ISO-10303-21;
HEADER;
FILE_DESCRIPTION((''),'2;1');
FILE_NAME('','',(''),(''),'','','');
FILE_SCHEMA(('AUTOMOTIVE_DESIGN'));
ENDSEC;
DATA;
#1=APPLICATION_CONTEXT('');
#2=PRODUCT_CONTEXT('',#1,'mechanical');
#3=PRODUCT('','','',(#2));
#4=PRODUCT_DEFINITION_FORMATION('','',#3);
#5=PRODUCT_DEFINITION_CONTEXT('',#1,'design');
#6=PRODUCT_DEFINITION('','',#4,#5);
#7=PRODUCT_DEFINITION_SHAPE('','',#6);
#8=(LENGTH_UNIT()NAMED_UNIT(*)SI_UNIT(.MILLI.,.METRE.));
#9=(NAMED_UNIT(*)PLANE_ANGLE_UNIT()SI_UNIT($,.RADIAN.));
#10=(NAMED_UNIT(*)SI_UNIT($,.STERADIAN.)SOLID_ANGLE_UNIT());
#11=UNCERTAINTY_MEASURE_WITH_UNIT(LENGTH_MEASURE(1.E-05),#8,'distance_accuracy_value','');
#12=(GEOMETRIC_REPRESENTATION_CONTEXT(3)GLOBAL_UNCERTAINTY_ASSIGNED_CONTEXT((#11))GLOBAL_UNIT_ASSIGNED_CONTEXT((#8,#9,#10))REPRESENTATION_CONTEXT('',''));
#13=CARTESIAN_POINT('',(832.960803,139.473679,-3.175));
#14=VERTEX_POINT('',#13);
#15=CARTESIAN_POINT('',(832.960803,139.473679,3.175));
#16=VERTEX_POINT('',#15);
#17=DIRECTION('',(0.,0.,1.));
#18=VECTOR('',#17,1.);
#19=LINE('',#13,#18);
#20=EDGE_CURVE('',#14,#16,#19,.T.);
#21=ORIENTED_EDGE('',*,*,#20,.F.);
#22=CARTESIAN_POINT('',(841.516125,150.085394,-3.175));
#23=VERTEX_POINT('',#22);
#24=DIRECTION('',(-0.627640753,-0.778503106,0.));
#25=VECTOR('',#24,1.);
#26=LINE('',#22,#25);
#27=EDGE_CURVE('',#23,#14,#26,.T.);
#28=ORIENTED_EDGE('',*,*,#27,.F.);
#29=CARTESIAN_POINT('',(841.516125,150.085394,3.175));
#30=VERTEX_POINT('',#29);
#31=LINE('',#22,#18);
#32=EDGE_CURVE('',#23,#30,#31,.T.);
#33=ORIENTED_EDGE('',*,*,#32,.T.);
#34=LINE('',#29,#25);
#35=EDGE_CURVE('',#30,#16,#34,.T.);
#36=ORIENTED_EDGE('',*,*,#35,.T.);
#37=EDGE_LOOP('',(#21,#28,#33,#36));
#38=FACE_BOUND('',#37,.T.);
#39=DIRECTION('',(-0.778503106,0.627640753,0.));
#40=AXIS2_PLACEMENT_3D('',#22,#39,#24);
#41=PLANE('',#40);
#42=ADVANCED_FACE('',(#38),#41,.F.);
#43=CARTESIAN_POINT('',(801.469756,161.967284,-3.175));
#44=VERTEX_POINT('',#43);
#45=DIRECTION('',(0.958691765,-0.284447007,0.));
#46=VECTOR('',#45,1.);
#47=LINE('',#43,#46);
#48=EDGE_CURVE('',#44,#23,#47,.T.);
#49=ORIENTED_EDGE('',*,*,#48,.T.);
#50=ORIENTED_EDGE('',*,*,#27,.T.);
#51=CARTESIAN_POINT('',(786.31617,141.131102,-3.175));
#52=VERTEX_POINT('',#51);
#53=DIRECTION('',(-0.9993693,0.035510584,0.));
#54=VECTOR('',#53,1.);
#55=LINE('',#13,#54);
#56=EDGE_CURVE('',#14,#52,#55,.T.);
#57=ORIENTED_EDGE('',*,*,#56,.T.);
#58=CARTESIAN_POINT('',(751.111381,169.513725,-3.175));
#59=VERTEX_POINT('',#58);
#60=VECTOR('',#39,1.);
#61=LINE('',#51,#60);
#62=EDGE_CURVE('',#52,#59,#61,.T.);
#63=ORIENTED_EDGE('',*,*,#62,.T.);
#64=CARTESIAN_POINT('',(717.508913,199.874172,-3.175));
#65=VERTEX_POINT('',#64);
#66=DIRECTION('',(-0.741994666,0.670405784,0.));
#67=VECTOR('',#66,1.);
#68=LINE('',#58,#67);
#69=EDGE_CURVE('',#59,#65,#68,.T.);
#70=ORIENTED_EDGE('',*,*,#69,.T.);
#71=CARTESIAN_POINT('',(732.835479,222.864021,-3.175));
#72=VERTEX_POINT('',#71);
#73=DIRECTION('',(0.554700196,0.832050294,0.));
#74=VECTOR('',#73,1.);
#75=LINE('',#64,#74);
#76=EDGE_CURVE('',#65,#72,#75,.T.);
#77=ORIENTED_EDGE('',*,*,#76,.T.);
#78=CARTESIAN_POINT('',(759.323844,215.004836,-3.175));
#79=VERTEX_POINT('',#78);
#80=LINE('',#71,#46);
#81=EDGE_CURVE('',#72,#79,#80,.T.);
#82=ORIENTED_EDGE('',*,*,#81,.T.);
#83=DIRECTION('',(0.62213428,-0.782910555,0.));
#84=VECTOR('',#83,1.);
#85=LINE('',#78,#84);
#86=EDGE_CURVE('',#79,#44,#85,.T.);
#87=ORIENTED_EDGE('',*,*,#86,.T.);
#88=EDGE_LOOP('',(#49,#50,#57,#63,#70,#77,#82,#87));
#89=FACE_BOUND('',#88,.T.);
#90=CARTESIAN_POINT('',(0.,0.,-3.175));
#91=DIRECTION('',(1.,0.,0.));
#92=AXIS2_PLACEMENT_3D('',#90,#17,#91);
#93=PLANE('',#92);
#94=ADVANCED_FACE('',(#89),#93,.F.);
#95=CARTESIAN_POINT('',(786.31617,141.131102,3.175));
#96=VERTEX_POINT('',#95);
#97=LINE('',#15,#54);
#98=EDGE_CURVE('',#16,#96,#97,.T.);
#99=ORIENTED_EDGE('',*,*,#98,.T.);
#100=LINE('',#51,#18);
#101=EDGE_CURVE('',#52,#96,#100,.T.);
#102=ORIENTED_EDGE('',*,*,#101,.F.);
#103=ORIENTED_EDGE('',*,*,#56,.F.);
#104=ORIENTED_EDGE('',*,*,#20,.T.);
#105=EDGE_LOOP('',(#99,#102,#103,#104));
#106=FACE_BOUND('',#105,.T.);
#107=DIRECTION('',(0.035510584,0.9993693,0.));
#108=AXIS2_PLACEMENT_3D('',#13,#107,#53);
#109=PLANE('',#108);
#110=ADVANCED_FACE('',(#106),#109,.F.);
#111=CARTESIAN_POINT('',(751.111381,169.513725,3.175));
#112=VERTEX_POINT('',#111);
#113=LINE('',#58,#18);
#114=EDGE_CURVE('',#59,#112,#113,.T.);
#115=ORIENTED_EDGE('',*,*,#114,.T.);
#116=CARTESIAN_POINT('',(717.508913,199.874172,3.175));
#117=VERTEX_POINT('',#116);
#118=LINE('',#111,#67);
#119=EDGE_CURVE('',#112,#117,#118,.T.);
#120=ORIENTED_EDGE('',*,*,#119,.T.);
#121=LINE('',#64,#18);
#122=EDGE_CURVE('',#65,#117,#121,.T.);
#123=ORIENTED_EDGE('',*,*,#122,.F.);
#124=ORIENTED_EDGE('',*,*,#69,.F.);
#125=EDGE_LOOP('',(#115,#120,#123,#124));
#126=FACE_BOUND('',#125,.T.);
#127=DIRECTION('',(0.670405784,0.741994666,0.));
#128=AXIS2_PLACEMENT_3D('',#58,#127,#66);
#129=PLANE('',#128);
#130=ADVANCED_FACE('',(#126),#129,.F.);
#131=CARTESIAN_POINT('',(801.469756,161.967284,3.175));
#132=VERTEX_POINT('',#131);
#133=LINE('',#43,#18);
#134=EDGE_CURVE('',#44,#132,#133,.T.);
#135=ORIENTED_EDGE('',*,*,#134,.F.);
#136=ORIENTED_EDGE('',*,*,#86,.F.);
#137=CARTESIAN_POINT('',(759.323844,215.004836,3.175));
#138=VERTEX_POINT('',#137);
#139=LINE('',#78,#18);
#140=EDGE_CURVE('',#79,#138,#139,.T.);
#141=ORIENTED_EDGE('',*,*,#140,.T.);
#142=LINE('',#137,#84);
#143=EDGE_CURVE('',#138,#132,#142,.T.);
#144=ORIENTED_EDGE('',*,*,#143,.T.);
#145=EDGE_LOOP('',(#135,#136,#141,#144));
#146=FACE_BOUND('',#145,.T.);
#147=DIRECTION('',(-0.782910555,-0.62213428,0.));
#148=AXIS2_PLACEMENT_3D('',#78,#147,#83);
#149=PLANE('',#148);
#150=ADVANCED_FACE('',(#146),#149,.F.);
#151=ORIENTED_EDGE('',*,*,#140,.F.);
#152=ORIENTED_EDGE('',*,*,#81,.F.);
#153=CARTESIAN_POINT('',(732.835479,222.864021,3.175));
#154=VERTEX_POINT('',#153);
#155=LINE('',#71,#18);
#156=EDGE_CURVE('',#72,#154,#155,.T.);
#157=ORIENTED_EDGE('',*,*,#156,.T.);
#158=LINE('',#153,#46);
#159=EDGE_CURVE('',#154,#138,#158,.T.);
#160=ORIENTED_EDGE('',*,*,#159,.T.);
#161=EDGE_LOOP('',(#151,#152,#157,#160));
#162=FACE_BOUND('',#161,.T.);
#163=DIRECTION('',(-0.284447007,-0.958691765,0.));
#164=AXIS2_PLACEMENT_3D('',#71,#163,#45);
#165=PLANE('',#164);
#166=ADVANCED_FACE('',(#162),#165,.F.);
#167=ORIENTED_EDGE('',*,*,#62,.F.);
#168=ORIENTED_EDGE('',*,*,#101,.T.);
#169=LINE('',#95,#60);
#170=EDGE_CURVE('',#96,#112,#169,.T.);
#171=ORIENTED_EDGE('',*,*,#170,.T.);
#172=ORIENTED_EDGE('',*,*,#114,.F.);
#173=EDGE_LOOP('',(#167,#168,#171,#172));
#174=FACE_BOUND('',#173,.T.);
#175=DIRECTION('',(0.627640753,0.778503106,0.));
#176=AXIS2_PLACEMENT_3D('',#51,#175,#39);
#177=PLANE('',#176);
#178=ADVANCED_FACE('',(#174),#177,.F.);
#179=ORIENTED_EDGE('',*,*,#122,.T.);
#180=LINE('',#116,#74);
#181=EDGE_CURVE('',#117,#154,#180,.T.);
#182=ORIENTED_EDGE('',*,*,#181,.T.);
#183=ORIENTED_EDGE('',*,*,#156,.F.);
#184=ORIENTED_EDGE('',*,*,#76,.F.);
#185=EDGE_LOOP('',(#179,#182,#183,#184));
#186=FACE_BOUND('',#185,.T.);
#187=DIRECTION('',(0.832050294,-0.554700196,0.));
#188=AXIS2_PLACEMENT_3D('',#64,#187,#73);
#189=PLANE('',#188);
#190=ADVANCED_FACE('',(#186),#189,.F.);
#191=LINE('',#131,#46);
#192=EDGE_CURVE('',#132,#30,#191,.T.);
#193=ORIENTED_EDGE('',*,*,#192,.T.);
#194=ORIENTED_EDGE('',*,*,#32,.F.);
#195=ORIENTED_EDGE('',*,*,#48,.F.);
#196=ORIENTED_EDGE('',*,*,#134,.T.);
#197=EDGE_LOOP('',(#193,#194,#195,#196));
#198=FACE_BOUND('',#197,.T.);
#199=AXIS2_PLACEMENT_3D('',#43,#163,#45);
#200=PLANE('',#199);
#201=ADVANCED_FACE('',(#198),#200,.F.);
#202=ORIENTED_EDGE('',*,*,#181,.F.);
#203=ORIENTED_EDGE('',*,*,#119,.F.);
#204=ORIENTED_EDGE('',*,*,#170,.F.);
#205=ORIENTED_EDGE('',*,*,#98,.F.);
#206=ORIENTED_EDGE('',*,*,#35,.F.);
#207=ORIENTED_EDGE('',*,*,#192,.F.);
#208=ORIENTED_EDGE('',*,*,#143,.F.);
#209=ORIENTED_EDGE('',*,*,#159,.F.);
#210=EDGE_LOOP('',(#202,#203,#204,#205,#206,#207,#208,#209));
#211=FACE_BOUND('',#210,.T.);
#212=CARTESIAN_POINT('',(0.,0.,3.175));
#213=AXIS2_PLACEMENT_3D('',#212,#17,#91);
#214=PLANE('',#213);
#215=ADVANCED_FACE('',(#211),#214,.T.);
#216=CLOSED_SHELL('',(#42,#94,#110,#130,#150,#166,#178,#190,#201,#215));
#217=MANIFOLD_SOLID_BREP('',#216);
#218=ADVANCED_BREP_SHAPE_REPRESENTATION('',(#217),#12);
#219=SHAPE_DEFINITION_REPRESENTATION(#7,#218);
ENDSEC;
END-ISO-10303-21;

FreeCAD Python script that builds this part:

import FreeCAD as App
import Part
import Sketcher

V = App.Vector
Q = App.Units.Quantity

doc = App.newDocument("Part")
body = doc.addObject("PartDesign::Body", "Body")

# Sketch on XY plane
sketch1 = doc.addObject("Sketcher::SketchObject", "Sketch")
body.addObject(sketch1)
sketch1.AttachmentSupport = (doc.XY_Plane, [""])
sketch1.MapMode = "FlatFace"
sketch1.addGeometry(Part.LineSegment(V(759, 215, 0), V(733, 223, 0)), False)
sketch1.addGeometry(Part.LineSegment(V(733, 223, 0), V(718, 200, 0)), False)
sketch1.addGeometry(Part.LineSegment(V(718, 200, 0), V(751, 170, 0)), False)
sketch1.addGeometry(Part.LineSegment(V(751, 170, 0), V(786, 141, 0)), False)
sketch1.addGeometry(Part.LineSegment(V(786, 141, 0), V(833, 139, 0)), False)
sketch1.addGeometry(Part.LineSegment(V(833, 139, 0), V(842, 150, 0)), False)
sketch1.addGeometry(Part.LineSegment(V(842, 150, 0), V(801, 162, 0)), False)
sketch1.addGeometry(Part.LineSegment(V(801, 162, 0), V(759, 215, 0)), False)
sketch1.addConstraint(Sketcher.Constraint("Coincident", 0, 2, 1, 1))
sketch1.addConstraint(Sketcher.Constraint("Coincident", 1, 2, 2, 1))
sketch1.addConstraint(Sketcher.Constraint("Coincident", 2, 2, 3, 1))
sketch1.addConstraint(Sketcher.Constraint("Coincident", 3, 2, 4, 1))
sketch1.addConstraint(Sketcher.Constraint("Coincident", 4, 2, 5, 1))
sketch1.addConstraint(Sketcher.Constraint("Coincident", 5, 2, 6, 1))
sketch1.addConstraint(Sketcher.Constraint("Coincident", 6, 2, 7, 1))
sketch1.addConstraint(Sketcher.Constraint("Coincident", 7, 2, 0, 1))
sketch1.addConstraint(Sketcher.Constraint("Perpendicular", 3, 5))
sketch1.addConstraint(Sketcher.Constraint("Parallel", 0, 6))
sketch1.addConstraint(Sketcher.Constraint("Distance", 0, Q("27.629699 mm")))
sketch1.addConstraint(Sketcher.Constraint("DistanceX", 0, 2, 2, 2, Q("18.275902 mm")))
sketch1.addConstraint(Sketcher.Constraint("Distance", 1, Q("27.630361 mm")))
sketch1.addConstraint(Sketcher.Constraint("Distance", 2, Q("45.286671 mm")))
sketch1.addConstraint(Sketcher.Constraint("Distance", 3, Q("45.221128 mm")))
sketch1.addConstraint(Sketcher.Constraint("Distance", 4, Q("46.674071 mm")))
sketch1.addConstraint(Sketcher.Constraint("DistanceX", -1, 1, 0, 2, Q("732.835479 mm")))
sketch1.addConstraint(Sketcher.Constraint("DistanceY", -1, 1, 0, 2, Q("222.864021 mm")))
sketch1.addConstraint(Sketcher.Constraint("DistanceY", -1, 1, 1, 2, Q("199.874172 mm")))
sketch1.addConstraint(Sketcher.Constraint("DistanceX", -1, 1, 3, 2, Q("786.31617 mm")))
sketch1.addConstraint(Sketcher.Constraint("DistanceY", -1, 1, 4, 2, Q("139.473679 mm")))
sketch1.addConstraint(Sketcher.Constraint("DistanceY", 3, 2, 5, 2, Q("8.954292 mm")))
sketch1.addConstraint(Sketcher.Constraint("DistanceY", 3, 2, 6, 2, Q("20.836181 mm")))
sketch1.addConstraint(Sketcher.Constraint("DistanceX", 6, 2, 5, 2, Q("40.046369 mm")))
pad1 = doc.addObject("PartDesign::Pad", "Pad")
body.addObject(pad1)
pad1.Profile = sketch1
pad1.Type = "TwoLengths"
pad1.Length = Q("0.125 in")
pad1.Length2 = Q("0.125 in")

doc.recompute()
